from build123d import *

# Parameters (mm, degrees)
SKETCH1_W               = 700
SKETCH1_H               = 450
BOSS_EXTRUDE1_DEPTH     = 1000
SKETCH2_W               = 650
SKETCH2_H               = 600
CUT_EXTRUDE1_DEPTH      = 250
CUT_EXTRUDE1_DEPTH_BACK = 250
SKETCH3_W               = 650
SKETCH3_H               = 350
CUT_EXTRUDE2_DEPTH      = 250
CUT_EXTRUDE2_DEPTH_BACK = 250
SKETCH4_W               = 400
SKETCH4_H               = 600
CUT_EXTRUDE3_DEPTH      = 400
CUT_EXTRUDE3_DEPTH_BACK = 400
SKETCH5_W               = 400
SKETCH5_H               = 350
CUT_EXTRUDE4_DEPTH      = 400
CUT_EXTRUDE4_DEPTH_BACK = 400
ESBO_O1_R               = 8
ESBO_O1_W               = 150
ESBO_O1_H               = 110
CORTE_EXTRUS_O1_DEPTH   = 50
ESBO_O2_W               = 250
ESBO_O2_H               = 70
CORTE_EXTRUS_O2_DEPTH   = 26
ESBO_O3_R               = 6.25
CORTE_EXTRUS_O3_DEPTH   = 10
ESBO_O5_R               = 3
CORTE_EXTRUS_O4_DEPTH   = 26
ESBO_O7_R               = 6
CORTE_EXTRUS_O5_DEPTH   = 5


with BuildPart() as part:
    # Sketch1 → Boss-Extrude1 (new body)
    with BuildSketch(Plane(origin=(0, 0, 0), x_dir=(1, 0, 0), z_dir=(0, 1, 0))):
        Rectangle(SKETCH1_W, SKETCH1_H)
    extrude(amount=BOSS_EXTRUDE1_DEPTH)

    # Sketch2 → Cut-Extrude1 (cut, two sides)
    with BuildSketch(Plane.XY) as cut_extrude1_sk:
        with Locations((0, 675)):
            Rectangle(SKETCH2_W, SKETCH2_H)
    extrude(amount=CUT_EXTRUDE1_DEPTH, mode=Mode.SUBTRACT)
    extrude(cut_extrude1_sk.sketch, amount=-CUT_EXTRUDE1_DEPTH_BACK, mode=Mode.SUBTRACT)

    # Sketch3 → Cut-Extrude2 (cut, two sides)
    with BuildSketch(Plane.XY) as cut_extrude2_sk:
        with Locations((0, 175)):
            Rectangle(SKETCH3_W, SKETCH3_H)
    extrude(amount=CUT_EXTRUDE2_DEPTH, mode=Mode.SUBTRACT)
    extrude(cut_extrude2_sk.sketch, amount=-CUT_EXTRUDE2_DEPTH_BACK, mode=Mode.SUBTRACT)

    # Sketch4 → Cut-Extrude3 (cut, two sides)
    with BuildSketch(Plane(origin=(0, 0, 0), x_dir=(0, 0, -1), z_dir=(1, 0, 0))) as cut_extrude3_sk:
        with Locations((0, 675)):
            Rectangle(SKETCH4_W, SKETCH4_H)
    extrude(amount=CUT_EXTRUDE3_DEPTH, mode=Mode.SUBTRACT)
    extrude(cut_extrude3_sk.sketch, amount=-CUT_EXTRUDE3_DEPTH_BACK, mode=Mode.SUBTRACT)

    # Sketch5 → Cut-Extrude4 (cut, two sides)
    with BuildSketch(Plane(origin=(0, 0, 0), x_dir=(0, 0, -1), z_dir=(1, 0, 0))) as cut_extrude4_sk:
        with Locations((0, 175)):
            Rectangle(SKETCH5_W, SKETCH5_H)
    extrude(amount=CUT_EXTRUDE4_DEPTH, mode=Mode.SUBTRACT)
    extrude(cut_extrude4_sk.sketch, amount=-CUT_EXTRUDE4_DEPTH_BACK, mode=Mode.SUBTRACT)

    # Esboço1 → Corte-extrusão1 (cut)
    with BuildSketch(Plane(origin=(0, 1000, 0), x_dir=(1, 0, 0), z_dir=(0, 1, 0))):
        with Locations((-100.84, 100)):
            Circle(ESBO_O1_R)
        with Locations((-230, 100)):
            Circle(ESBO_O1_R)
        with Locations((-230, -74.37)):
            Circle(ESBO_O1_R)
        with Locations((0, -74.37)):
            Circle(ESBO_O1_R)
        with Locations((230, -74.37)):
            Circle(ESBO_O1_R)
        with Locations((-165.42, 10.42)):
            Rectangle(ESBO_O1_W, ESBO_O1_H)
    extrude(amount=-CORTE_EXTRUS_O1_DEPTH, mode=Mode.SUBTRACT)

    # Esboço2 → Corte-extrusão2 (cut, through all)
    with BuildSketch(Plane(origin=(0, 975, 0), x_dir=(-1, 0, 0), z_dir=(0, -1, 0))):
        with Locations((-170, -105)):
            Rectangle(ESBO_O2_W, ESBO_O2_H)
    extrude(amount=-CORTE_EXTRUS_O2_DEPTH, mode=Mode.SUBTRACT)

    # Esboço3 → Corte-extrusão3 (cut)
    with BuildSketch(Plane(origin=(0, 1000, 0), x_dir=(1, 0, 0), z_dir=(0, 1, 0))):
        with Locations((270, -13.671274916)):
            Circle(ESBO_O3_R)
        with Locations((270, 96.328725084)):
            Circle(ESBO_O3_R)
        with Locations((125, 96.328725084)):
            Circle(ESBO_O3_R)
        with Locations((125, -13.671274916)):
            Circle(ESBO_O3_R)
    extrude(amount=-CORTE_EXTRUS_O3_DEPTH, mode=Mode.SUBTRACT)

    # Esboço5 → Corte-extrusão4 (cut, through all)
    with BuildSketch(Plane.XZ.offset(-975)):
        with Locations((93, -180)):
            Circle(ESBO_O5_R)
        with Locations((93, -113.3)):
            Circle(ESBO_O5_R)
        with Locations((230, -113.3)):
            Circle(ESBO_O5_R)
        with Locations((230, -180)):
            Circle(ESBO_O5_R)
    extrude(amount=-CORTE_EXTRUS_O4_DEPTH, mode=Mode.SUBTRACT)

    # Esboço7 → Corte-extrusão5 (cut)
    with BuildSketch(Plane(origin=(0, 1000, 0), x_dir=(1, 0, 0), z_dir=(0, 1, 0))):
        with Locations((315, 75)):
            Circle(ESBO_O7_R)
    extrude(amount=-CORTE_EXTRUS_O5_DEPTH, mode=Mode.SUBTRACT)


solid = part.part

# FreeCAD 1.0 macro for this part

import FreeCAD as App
import Part
import Sketcher
from FreeCAD import Vector
Q = App.Units.Quantity

doc = App.newDocument("Part")
body = doc.addObject("PartDesign::Body", "Body")

# Sketch on XZ plane
sketch1 = body.newObject("Sketcher::SketchObject", "Sketch")
sketch1.AttachmentSupport = (doc.getObject("XZ_Plane"), [""])
sketch1.MapMode = "FlatFace"
sketch1.addGeometry(Part.LineSegment(Vector(-350, -225, 0), Vector(-350, 225, 0)), False)
sketch1.addGeometry(Part.LineSegment(Vector(-350, 225, 0), Vector(350, 225, 0)), False)
sketch1.addGeometry(Part.LineSegment(Vector(350, 225, 0), Vector(350, -225, 0)), False)
sketch1.addGeometry(Part.LineSegment(Vector(350, -225, 0), Vector(-350, -225, 0)), False)
sketch1.addConstraint(Sketcher.Constraint("Coincident", 0, 2, 1, 1))
sketch1.addConstraint(Sketcher.Constraint("Coincident", 1, 2, 2, 1))
sketch1.addConstraint(Sketcher.Constraint("Coincident", 2, 2, 3, 1))
sketch1.addConstraint(Sketcher.Constraint("Coincident", 3, 2, 0, 1))
sketch1.addConstraint(Sketcher.Constraint("Vertical", 0))
sketch1.addConstraint(Sketcher.Constraint("Horizontal", 1))
sketch1.addConstraint(Sketcher.Constraint("Vertical", 2))
sketch1.addConstraint(Sketcher.Constraint("Horizontal", 3))
sketch1.addConstraint(Sketcher.Constraint("Symmetric", 0, 2, 2, 2, -1, 1))
sketch1.addConstraint(Sketcher.Constraint("DistanceX", 1, 1, 1, 2, Q("700 mm")))
sketch1.addConstraint(Sketcher.Constraint("DistanceY", 0, 1, 0, 2, Q("450 mm")))
pad1 = body.newObject("PartDesign::Pad", "Pad")
pad1.Profile = sketch1
pad1.Length = 1000
pad1.Reversed = True

# Sketch on XY plane
sketch2 = body.newObject("Sketcher::SketchObject", "Sketch001")
sketch2.AttachmentSupport = (doc.getObject("XY_Plane"), [""])
sketch2.MapMode = "FlatFace"
sketch2.addGeometry(Part.LineSegment(Vector(-325, 975, 0), Vector(-325, 375, 0)), False)
sketch2.addGeometry(Part.LineSegment(Vector(-325, 375, 0), Vector(325, 375, 0)), False)
sketch2.addGeometry(Part.LineSegment(Vector(325, 375, 0), Vector(325, 975, 0)), False)
sketch2.addGeometry(Part.LineSegment(Vector(325, 975, 0), Vector(-325, 975, 0)), False)
sketch2.addConstraint(Sketcher.Constraint("Coincident", 0, 2, 1, 1))
sketch2.addConstraint(Sketcher.Constraint("Coincident", 1, 2, 2, 1))
sketch2.addConstraint(Sketcher.Constraint("Coincident", 2, 2, 3, 1))
sketch2.addConstraint(Sketcher.Constraint("Coincident", 3, 2, 0, 1))
sketch2.addConstraint(Sketcher.Constraint("Vertical", 0))
sketch2.addConstraint(Sketcher.Constraint("Horizontal", 1))
sketch2.addConstraint(Sketcher.Constraint("Vertical", 2))
sketch2.addConstraint(Sketcher.Constraint("Horizontal", 3))
sketch2.addConstraint(Sketcher.Constraint("DistanceX", 1, 1, 1, 2, Q("650 mm")))
sketch2.addConstraint(Sketcher.Constraint("DistanceY", 0, 2, 0, 1, Q("600 mm")))
sketch2.addConstraint(Sketcher.Constraint("DistanceX", 0, 2, -1, 1, Q("325 mm")))
sketch2.addConstraint(Sketcher.Constraint("DistanceY", -1, 1, 0, 2, Q("375 mm")))
pocket1 = body.newObject("PartDesign::Pocket", "Pocket")
pocket1.Profile = sketch2
pocket1.Type = "ThroughAll"
pocket1.Midplane = True

# Sketch on XY plane
sketch3 = body.newObject("Sketcher::SketchObject", "Sketch002")
sketch3.AttachmentSupport = (doc.getObject("XY_Plane"), [""])
sketch3.MapMode = "FlatFace"
sketch3.addGeometry(Part.LineSegment(Vector(-325, 350, 0), Vector(-325, 0, 0)), False)
sketch3.addGeometry(Part.LineSegment(Vector(-325, 0, 0), Vector(325, 0, 0)), False)
sketch3.addGeometry(Part.LineSegment(Vector(325, 0, 0), Vector(325, 350, 0)), False)
sketch3.addGeometry(Part.LineSegment(Vector(325, 350, 0), Vector(-325, 350, 0)), False)
sketch3.addConstraint(Sketcher.Constraint("Coincident", 0, 2, 1, 1))
sketch3.addConstraint(Sketcher.Constraint("Coincident", 1, 2, 2, 1))
sketch3.addConstraint(Sketcher.Constraint("Coincident", 2, 2, 3, 1))
sketch3.addConstraint(Sketcher.Constraint("Coincident", 3, 2, 0, 1))
sketch3.addConstraint(Sketcher.Constraint("Vertical", 0))
sketch3.addConstraint(Sketcher.Constraint("Horizontal", 1))
sketch3.addConstraint(Sketcher.Constraint("Vertical", 2))
sketch3.addConstraint(Sketcher.Constraint("Horizontal", 3))
sketch3.addConstraint(Sketcher.Constraint("Symmetric", 0, 2, 1, 2, -1, 1))
sketch3.addConstraint(Sketcher.Constraint("DistanceX", 1, 1, 1, 2, Q("650 mm")))
sketch3.addConstraint(Sketcher.Constraint("DistanceY", 0, 2, 0, 1, Q("350 mm")))
pocket2 = body.newObject("PartDesign::Pocket", "Pocket001")
pocket2.Profile = sketch3
pocket2.Type = "ThroughAll"
pocket2.Midplane = True

# Sketch on YZ plane
sketch4 = body.newObject("Sketcher::SketchObject", "Sketch003")
sketch4.AttachmentSupport = (doc.getObject("YZ_Plane"), [""])
sketch4.MapMode = "FlatFace"
sketch4.addGeometry(Part.LineSegment(Vector(975, 200, 0), Vector(375, 200, 0)), False)
sketch4.addGeometry(Part.LineSegment(Vector(375, 200, 0), Vector(375, -200, 0)), False)
sketch4.addGeometry(Part.LineSegment(Vector(375, -200, 0), Vector(975, -200, 0)), False)
sketch4.addGeometry(Part.LineSegment(Vector(975, -200, 0), Vector(975, 200, 0)), False)
sketch4.addConstraint(Sketcher.Constraint("Coincident", 0, 2, 1, 1))
sketch4.addConstraint(Sketcher.Constraint("Coincident", 1, 2, 2, 1))
sketch4.addConstraint(Sketcher.Constraint("Coincident", 2, 2, 3, 1))
sketch4.addConstraint(Sketcher.Constraint("Coincident", 3, 2, 0, 1))
sketch4.addConstraint(Sketcher.Constraint("Horizontal", 0))
sketch4.addConstraint(Sketcher.Constraint("Vertical", 1))
sketch4.addConstraint(Sketcher.Constraint("Horizontal", 2))
sketch4.addConstraint(Sketcher.Constraint("Vertical", 3))
sketch4.addConstraint(Sketcher.Constraint("DistanceX", 0, 2, 0, 1, Q("600 mm")))
sketch4.addConstraint(Sketcher.Constraint("DistanceY", 1, 2, 1, 1, Q("400 mm")))
sketch4.addConstraint(Sketcher.Constraint("DistanceX", -1, 1, 0, 2, Q("375 mm")))
sketch4.addConstraint(Sketcher.Constraint("DistanceY", -1, 1, 0, 2, Q("200 mm")))
pocket3 = body.newObject("PartDesign::Pocket", "Pocket002")
pocket3.Profile = sketch4
pocket3.Type = "ThroughAll"
pocket3.Midplane = True

# Sketch on YZ plane
sketch5 = body.newObject("Sketcher::SketchObject", "Sketch004")
sketch5.AttachmentSupport = (doc.getObject("YZ_Plane"), [""])
sketch5.MapMode = "FlatFace"
sketch5.addGeometry(Part.LineSegment(Vector(350, 200, 0), Vector(0, 200, 0)), False)
sketch5.addGeometry(Part.LineSegment(Vector(0, 200, 0), Vector(0, -200, 0)), False)
sketch5.addGeometry(Part.LineSegment(Vector(0, -200, 0), Vector(350, -200, 0)), False)
sketch5.addGeometry(Part.LineSegment(Vector(350, -200, 0), Vector(350, 200, 0)), False)
sketch5.addConstraint(Sketcher.Constraint("Coincident", 0, 2, 1, 1))
sketch5.addConstraint(Sketcher.Constraint("Coincident", 1, 2, 2, 1))
sketch5.addConstraint(Sketcher.Constraint("Coincident", 2, 2, 3, 1))
sketch5.addConstraint(Sketcher.Constraint("Coincident", 3, 2, 0, 1))
sketch5.addConstraint(Sketcher.Constraint("Horizontal", 0))
sketch5.addConstraint(Sketcher.Constraint("Vertical", 1))
sketch5.addConstraint(Sketcher.Constraint("Horizontal", 2))
sketch5.addConstraint(Sketcher.Constraint("Vertical", 3))
sketch5.addConstraint(Sketcher.Constraint("Symmetric", 0, 2, 1, 2, -1, 1))
sketch5.addConstraint(Sketcher.Constraint("DistanceX", 0, 2, 0, 1, Q("350 mm")))
sketch5.addConstraint(Sketcher.Constraint("DistanceY", 1, 2, 1, 1, Q("400 mm")))
pocket4 = body.newObject("PartDesign::Pocket", "Pocket003")
pocket4.Profile = sketch5
pocket4.Type = "ThroughAll"
pocket4.Midplane = True

# Sketch on XZ plane
sketch6 = body.newObject("Sketcher::SketchObject", "Sketch005")
sketch6.AttachmentSupport = (doc.getObject("XZ_Plane"), [""])
sketch6.MapMode = "FlatFace"
sketch6.AttachmentOffset = App.Placement(Vector(0, 0, -1000), App.Rotation())
sketch6.addGeometry(Part.Circle(Vector(-101, -100, 0), Vector(0, 0, 1), 8), False)
sketch6.addGeometry(Part.Circle(Vector(-230, -100, 0), Vector(0, 0, 1), 8), False)
sketch6.addGeometry(Part.Circle(Vector(-230, 74, 0), Vector(0, 0, 1), 8), False)
sketch6.addGeometry(Part.Circle(Vector(0, 74, 0), Vector(0, 0, 1), 8), False)
sketch6.addGeometry(Part.Circle(Vector(230, 74, 0), Vector(0, 0, 1), 8), False)
sketch6.addGeometry(Part.LineSegment(Vector(-240, -65, 0), Vector(-240, 45, 0)), False)
sketch6.addGeometry(Part.LineSegment(Vector(-240, 45, 0), Vector(-90, 45, 0)), False)
sketch6.addGeometry(Part.LineSegment(Vector(-90, 45, 0), Vector(-90, -65, 0)), False)
sketch6.addGeometry(Part.LineSegment(Vector(-90, -65, 0), Vector(-240, -65, 0)), False)
sketch6.addConstraint(Sketcher.Constraint("Coincident", 5, 2, 6, 1))
sketch6.addConstraint(Sketcher.Constraint("Coincident", 6, 2, 7, 1))
sketch6.addConstraint(Sketcher.Constraint("Coincident", 7, 2, 8, 1))
sketch6.addConstraint(Sketcher.Constraint("Coincident", 8, 2, 5, 1))
sketch6.addConstraint(Sketcher.Constraint("Vertical", 5))
sketch6.addConstraint(Sketcher.Constraint("Horizontal", 6))
sketch6.addConstraint(Sketcher.Constraint("Vertical", 7))
sketch6.addConstraint(Sketcher.Constraint("Horizontal", 8))
sketch6.addConstraint(Sketcher.Constraint("Equal", 0, 1))
sketch6.addConstraint(Sketcher.Constraint("Equal", 1, 2))
sketch6.addConstraint(Sketcher.Constraint("Equal", 2, 3))
sketch6.addConstraint(Sketcher.Constraint("Equal", 3, 4))
sketch6.addConstraint(Sketcher.Constraint("Symmetric", 2, 3, 4, 3, -2))
sketch6.addConstraint(Sketcher.Constraint("PointOnObject", 3, 3, -2))
sketch6.addConstraint(Sketcher.Constraint("Horizontal", 0, 3, 1, 3))
sketch6.addConstraint(Sketcher.Constraint("Horizontal", 2, 3, 3, 3))
sketch6.addConstraint(Sketcher.Constraint("Vertical", 1, 3, 2, 3))
sketch6.addConstraint(Sketcher.Constraint("Diameter", 0, Q("16 mm")))
sketch6.addConstraint(Sketcher.Constraint("DistanceX", 6, 1, 6, 2, Q("150 mm")))
sketch6.addConstraint(Sketcher.Constraint("DistanceY", 5, 1, 5, 2, Q("110 mm")))
sketch6.addConstraint(Sketcher.Constraint("DistanceY", 0, 3, -1, 1, Q("100 mm")))
sketch6.addConstraint(Sketcher.Constraint("DistanceX", 1, 3, -1, 1, Q("230 mm")))
sketch6.addConstraint(Sketcher.Constraint("DistanceX", 0, 3, -1, 1, Q("100.84 mm")))
sketch6.addConstraint(Sketcher.Constraint("DistanceY", -1, 1, 2, 3, Q("74.37 mm")))
sketch6.addConstraint(Sketcher.Constraint("DistanceX", 5, 2, -1, 1, Q("240.42 mm")))
sketch6.addConstraint(Sketcher.Constraint("DistanceY", -1, 1, 5, 2, Q("44.58 mm")))
pocket5 = body.newObject("PartDesign::Pocket", "Pocket004")
pocket5.Profile = sketch6
pocket5.Length = 50
pocket5.Reversed = True

# Sketch on XZ plane
sketch7 = body.newObject("Sketcher::SketchObject", "Sketch006")
sketch7.AttachmentSupport = (doc.getObject("XZ_Plane"), [""])
sketch7.MapMode = "FlatFace"
sketch7.AttachmentOffset = App.Placement(Vector(0, 0, -975), App.Rotation())
sketch7.addGeometry(Part.LineSegment(Vector(295, 70, 0), Vector(295, 140, 0)), False)
sketch7.addGeometry(Part.LineSegment(Vector(295, 140, 0), Vector(45, 140, 0)), False)
sketch7.addGeometry(Part.LineSegment(Vector(45, 140, 0), Vector(45, 70, 0)), False)
sketch7.addGeometry(Part.LineSegment(Vector(45, 70, 0), Vector(295, 70, 0)), False)
sketch7.addConstraint(Sketcher.Constraint("Coincident", 0, 2, 1, 1))
sketch7.addConstraint(Sketcher.Constraint("Coincident", 1, 2, 2, 1))
sketch7.addConstraint(Sketcher.Constraint("Coincident", 2, 2, 3, 1))
sketch7.addConstraint(Sketcher.Constraint("Coincident", 3, 2, 0, 1))
sketch7.addConstraint(Sketcher.Constraint("Vertical", 0))
sketch7.addConstraint(Sketcher.Constraint("Horizontal", 1))
sketch7.addConstraint(Sketcher.Constraint("Vertical", 2))
sketch7.addConstraint(Sketcher.Constraint("Horizontal", 3))
sketch7.addConstraint(Sketcher.Constraint("DistanceX", 1, 2, 1, 1, Q("250 mm")))
sketch7.addConstraint(Sketcher.Constraint("DistanceY", 0, 1, 0, 2, Q("70 mm")))
sketch7.addConstraint(Sketcher.Constraint("DistanceX", -1, 1, 0, 2, Q("295 mm")))
sketch7.addConstraint(Sketcher.Constraint("DistanceY", -1, 1, 0, 2, Q("140 mm")))
pocket6 = body.newObject("PartDesign::Pocket", "Pocket005")
pocket6.Profile = sketch7
pocket6.Type = "ThroughAll"

# Sketch on XZ plane
sketch8 = body.newObject("Sketcher::SketchObject", "Sketch007")
sketch8.AttachmentSupport = (doc.getObject("XZ_Plane"), [""])
sketch8.MapMode = "FlatFace"
sketch8.AttachmentOffset = App.Placement(Vector(0, 0, -1000), App.Rotation())
sketch8.addGeometry(Part.Circle(Vector(270, 14, 0), Vector(0, 0, 1), 6), False)
sketch8.addGeometry(Part.Circle(Vector(270, -96, 0), Vector(0, 0, 1), 6), False)
sketch8.addGeometry(Part.Circle(Vector(125, -96, 0), Vector(0, 0, 1), 6), False)
sketch8.addGeometry(Part.Circle(Vector(125, 14, 0), Vector(0, 0, 1), 6), False)
sketch8.addConstraint(Sketcher.Constraint("Equal", 0, 1))
sketch8.addConstraint(Sketcher.Constraint("Equal", 1, 2))
sketch8.addConstraint(Sketcher.Constraint("Equal", 2, 3))
sketch8.addConstraint(Sketcher.Constraint("Horizontal", 1, 3, 2, 3))
sketch8.addConstraint(Sketcher.Constraint("Horizontal", 0, 3, 3, 3))
sketch8.addConstraint(Sketcher.Constraint("Vertical", 0, 3, 1, 3))
sketch8.addConstraint(Sketcher.Constraint("Vertical", 2, 3, 3, 3))
sketch8.addConstraint(Sketcher.Constraint("Diameter", 0, Q("12.5 mm")))
sketch8.addConstraint(Sketcher.Constraint("DistanceX", -1, 1, 0, 3, Q("270 mm")))
sketch8.addConstraint(Sketcher.Constraint("DistanceX", -1, 1, 2, 3, Q("125 mm")))
sketch8.addConstraint(Sketcher.Constraint("DistanceY", 1, 3, 0, 3, Q("110 mm")))
sketch8.addConstraint(Sketcher.Constraint("DistanceY", -1, 1, 0, 3, Q("13.671275 mm")))
pocket7 = body.newObject("PartDesign::Pocket", "Pocket006")
pocket7.Profile = sketch8
pocket7.Length = 10
pocket7.Reversed = True

# Sketch on XZ plane
sketch9 = body.newObject("Sketcher::SketchObject", "Sketch008")
sketch9.AttachmentSupport = (doc.getObject("XZ_Plane"), [""])
sketch9.MapMode = "FlatFace"
sketch9.AttachmentOffset = App.Placement(Vector(0, 0, -975), App.Rotation())
sketch9.addGeometry(Part.Circle(Vector(93, -180, 0), Vector(0, 0, 1), 3), False)
sketch9.addGeometry(Part.Circle(Vector(93, -113.3, 0), Vector(0, 0, 1), 3), False)
sketch9.addGeometry(Part.Circle(Vector(230, -113.3, 0), Vector(0, 0, 1), 3), False)
sketch9.addGeometry(Part.Circle(Vector(230, -180, 0), Vector(0, 0, 1), 3), False)
sketch9.addConstraint(Sketcher.Constraint("Equal", 0, 1))
sketch9.addConstraint(Sketcher.Constraint("Equal", 1, 2))
sketch9.addConstraint(Sketcher.Constraint("Equal", 2, 3))
sketch9.addConstraint(Sketcher.Constraint("Horizontal", 1, 3, 2, 3))
sketch9.addConstraint(Sketcher.Constraint("Horizontal", 0, 3, 3, 3))
sketch9.addConstraint(Sketcher.Constraint("Vertical", 0, 3, 1, 3))
sketch9.addConstraint(Sketcher.Constraint("Vertical", 2, 3, 3, 3))
sketch9.addConstraint(Sketcher.Constraint("Diameter", 0, Q("6 mm")))
sketch9.addConstraint(Sketcher.Constraint("DistanceX", -1, 1, 0, 3, Q("93 mm")))
sketch9.addConstraint(Sketcher.Constraint("DistanceY", 0, 3, -1, 1, Q("180 mm")))
sketch9.addConstraint(Sketcher.Constraint("DistanceX", -1, 1, 2, 3, Q("230 mm")))
sketch9.addConstraint(Sketcher.Constraint("DistanceY", 1, 3, -1, 1, Q("113.3 mm")))
pocket8 = body.newObject("PartDesign::Pocket", "Pocket007")
pocket8.Profile = sketch9
pocket8.Type = "ThroughAll"

# Sketch on XZ plane
sketch10 = body.newObject("Sketcher::SketchObject", "Sketch009")
sketch10.AttachmentSupport = (doc.getObject("XZ_Plane"), [""])
sketch10.MapMode = "FlatFace"
sketch10.AttachmentOffset = App.Placement(Vector(0, 0, -1000), App.Rotation())
sketch10.addGeometry(Part.Circle(Vector(315, -75, 0), Vector(0, 0, 1), 6), False)
sketch10.addConstraint(Sketcher.Constraint("Diameter", 0, Q("12 mm")))
sketch10.addConstraint(Sketcher.Constraint("DistanceX", -1, 1, 0, 3, Q("315 mm")))
sketch10.addConstraint(Sketcher.Constraint("DistanceY", 0, 3, -1, 1, Q("75 mm")))
pocket9 = body.newObject("PartDesign::Pocket", "Pocket008")
pocket9.Profile = sketch10
pocket9.Length = 5
pocket9.Reversed = True

doc.recompute()
